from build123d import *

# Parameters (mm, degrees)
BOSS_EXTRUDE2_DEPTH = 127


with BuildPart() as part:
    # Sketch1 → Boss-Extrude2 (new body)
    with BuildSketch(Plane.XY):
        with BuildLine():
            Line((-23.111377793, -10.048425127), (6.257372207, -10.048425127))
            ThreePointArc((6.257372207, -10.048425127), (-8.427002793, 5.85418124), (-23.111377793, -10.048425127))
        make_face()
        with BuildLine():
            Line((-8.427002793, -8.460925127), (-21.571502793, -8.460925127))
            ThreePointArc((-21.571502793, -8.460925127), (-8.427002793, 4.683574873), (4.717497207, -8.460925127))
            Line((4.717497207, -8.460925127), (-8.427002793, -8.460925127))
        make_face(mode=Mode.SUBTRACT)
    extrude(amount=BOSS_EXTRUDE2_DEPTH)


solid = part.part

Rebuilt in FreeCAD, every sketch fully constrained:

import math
import FreeCAD as App
import Part
import Sketcher

V = App.Vector
Q = App.Units.Quantity

doc = App.newDocument("Part")
body = doc.addObject("PartDesign::Body", "Body")

# Sketch on XY plane
sketch1 = body.newObject("Sketcher::SketchObject", "Sketch")
sketch1.AttachmentSupport = (doc.getObject("XY_Plane"), [""])
sketch1.MapMode = "FlatFace"
sketch1.addGeometry(Part.LineSegment(V(-23, -10, 0), V(6, -10, 0)), False)
sketch1.addGeometry(Part.ArcOfCircle(Part.Circle(V(-8, -9, 0), V(0, 0, 1), 15), math.radians(-5), math.radians(185)), False)
sketch1.addGeometry(Part.LineSegment(V(5, -8, 0), V(-22, -8, 0)), False)
sketch1.addGeometry(Part.ArcOfCircle(Part.Circle(V(-8, -8, 0), V(0, 0, 1), 13), math.radians(0), math.radians(180)), False)
sketch1.addConstraint(Sketcher.Constraint("Coincident", 0, 1, 1, 2))
sketch1.addConstraint(Sketcher.Constraint("Coincident", 1, 1, 0, 2))
sketch1.addConstraint(Sketcher.Constraint("Coincident", 2, 1, 3, 1))
sketch1.addConstraint(Sketcher.Constraint("Coincident", 3, 2, 2, 2))
sketch1.addConstraint(Sketcher.Constraint("Horizontal", 0))
sketch1.addConstraint(Sketcher.Constraint("Horizontal", 2))
sketch1.addConstraint(Sketcher.Constraint("Horizontal", 3, 3, 2, 1))
sketch1.addConstraint(Sketcher.Constraint("Vertical", 1, 3, 3, 3))
sketch1.addConstraint(Sketcher.Constraint("Radius", 3, Q("0.5175 in")))
sketch1.addConstraint(Sketcher.Constraint("DistanceX", 0, 1, 0, 2, Q("1.15625 in")))
sketch1.addConstraint(Sketcher.Constraint("DistanceY", 0, 1, 3, 3, Q("0.0625 in")))
sketch1.addConstraint(Sketcher.Constraint("Radius", 1, 14.731037))
sketch1.addConstraint(Sketcher.Constraint("DistanceX", 1, 3, -1, 1, 8.427003))
sketch1.addConstraint(Sketcher.Constraint("DistanceY", 1, 3, -1, 1, 8.876856))
pad1 = body.newObject("PartDesign::Pad", "Pad")
pad1.Profile = sketch1
pad1.Length = Q("5 in")

doc.recompute()
